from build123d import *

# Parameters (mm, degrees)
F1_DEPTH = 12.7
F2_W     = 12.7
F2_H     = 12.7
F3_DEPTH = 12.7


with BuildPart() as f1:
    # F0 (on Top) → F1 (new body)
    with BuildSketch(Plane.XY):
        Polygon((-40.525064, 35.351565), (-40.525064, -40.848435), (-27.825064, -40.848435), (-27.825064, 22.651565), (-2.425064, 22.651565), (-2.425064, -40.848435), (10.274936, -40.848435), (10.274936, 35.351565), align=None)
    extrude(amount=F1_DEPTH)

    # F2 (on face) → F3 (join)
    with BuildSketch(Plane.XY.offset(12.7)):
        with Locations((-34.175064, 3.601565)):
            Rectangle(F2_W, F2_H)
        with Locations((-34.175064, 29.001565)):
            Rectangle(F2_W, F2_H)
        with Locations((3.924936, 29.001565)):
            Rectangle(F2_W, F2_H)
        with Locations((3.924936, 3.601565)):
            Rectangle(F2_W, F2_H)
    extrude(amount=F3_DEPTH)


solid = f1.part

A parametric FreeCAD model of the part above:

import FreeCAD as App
import Part
import Sketcher

V = App.Vector
Q = App.Units.Quantity

doc = App.newDocument("Part")
body = doc.addObject("PartDesign::Body", "Body")

sketch1 = doc.addObject("Sketcher::SketchObject", "Sketch")
body.addObject(sketch1)
sketch1.AttachmentSupport = (doc.XY_Plane, [""])
sketch1.MapMode = "FlatFace"
sketch1.addGeometry([
    Part.LineSegment(V(-41, 35, 0), V(-41, -41, 0)),
    Part.LineSegment(V(-41, -41, 0), V(-28, -41, 0)),
    Part.LineSegment(V(-28, -41, 0), V(-28, 23, 0)),
    Part.LineSegment(V(-28, 23, 0), V(-2, 23, 0)),
    Part.LineSegment(V(-2, 23, 0), V(-2, -41, 0)),
    Part.LineSegment(V(-2, -41, 0), V(10, -41, 0)),
    Part.LineSegment(V(10, -41, 0), V(10, 35, 0)),
    Part.LineSegment(V(10, 35, 0), V(-41, 35, 0)),
], False)
sketch1.addConstraint([
    Sketcher.Constraint("Coincident", 0, 2, 1, 1),
    Sketcher.Constraint("Coincident", 1, 2, 2, 1),
    Sketcher.Constraint("Coincident", 2, 2, 3, 1),
    Sketcher.Constraint("Coincident", 3, 2, 4, 1),
    Sketcher.Constraint("Coincident", 4, 2, 5, 1),
    Sketcher.Constraint("Coincident", 5, 2, 6, 1),
    Sketcher.Constraint("Coincident", 6, 2, 7, 1),
    Sketcher.Constraint("Coincident", 7, 2, 0, 1),
    Sketcher.Constraint("Vertical", 0),
    Sketcher.Constraint("Horizontal", 1),
    Sketcher.Constraint("Vertical", 2),
    Sketcher.Constraint("Horizontal", 3),
    Sketcher.Constraint("Vertical", 4),
    Sketcher.Constraint("Horizontal", 5),
    Sketcher.Constraint("Vertical", 6),
    Sketcher.Constraint("Horizontal", 7),
    Sketcher.Constraint("Horizontal", 1, 2, 4, 2),
    Sketcher.Constraint("Equal", 1, 5),
    Sketcher.Constraint("DistanceX", 3, 1, 3, 2, Q("1 in")),
    Sketcher.Constraint("DistanceX", 7, 2, 7, 1, Q("2 in")),
    Sketcher.Constraint("DistanceY", 0, 2, 0, 1, Q("3 in")),
    Sketcher.Constraint("DistanceY", 2, 1, 2, 2, Q("2.5 in")),
    Sketcher.Constraint("DistanceX", 0, 2, -1, 1, Q("40.525064 mm")),
    Sketcher.Constraint("DistanceY", 0, 2, -1, 1, Q("40.848435 mm")),
])
pad1 = doc.addObject("PartDesign::Pad", "Pad")
body.addObject(pad1)
pad1.Profile = sketch1
pad1.Length = Q("0.5 in")

sketch2 = doc.addObject("Sketcher::SketchObject", "Sketch001")
body.addObject(sketch2)
sketch2.AttachmentSupport = (doc.XY_Plane, [""])
sketch2.MapMode = "FlatFace"
sketch2.AttachmentOffset = App.Placement(V(0, 0, 0.5 * 25.4), App.Rotation())
sketch2.addGeometry([
    Part.LineSegment(V(-41, 10, 0), V(-41, -3, 0)),
    Part.LineSegment(V(-41, -3, 0), V(-28, -3, 0)),
    Part.LineSegment(V(-28, -3, 0), V(-28, 10, 0)),
    Part.LineSegment(V(-28, 10, 0), V(-41, 10, 0)),
    Part.LineSegment(V(-41, 35, 0), V(-41, 23, 0)),
    Part.LineSegment(V(-41, 23, 0), V(-28, 23, 0)),
    Part.LineSegment(V(-28, 23, 0), V(-28, 35, 0)),
    Part.LineSegment(V(-28, 35, 0), V(-41, 35, 0)),
    Part.LineSegment(V(-2, 35, 0), V(-2, 23, 0)),
    Part.LineSegment(V(-2, 23, 0), V(10, 23, 0)),
    Part.LineSegment(V(10, 23, 0), V(10, 35, 0)),
    Part.LineSegment(V(10, 35, 0), V(-2, 35, 0)),
    Part.LineSegment(V(-2, 10, 0), V(-2, -3, 0)),
    Part.LineSegment(V(-2, -3, 0), V(10, -3, 0)),
    Part.LineSegment(V(10, -3, 0), V(10, 10, 0)),
    Part.LineSegment(V(10, 10, 0), V(-2, 10, 0)),
], False)
sketch2.addConstraint([
    Sketcher.Constraint("Coincident", 0, 2, 1, 1),
    Sketcher.Constraint("Coincident", 1, 2, 2, 1),
    Sketcher.Constraint("Coincident", 2, 2, 3, 1),
    Sketcher.Constraint("Coincident", 3, 2, 0, 1),
    Sketcher.Constraint("Coincident", 4, 2, 5, 1),
    Sketcher.Constraint("Coincident", 5, 2, 6, 1),
    Sketcher.Constraint("Coincident", 6, 2, 7, 1),
    Sketcher.Constraint("Coincident", 7, 2, 4, 1),
    Sketcher.Constraint("Coincident", 8, 2, 9, 1),
    Sketcher.Constraint("Coincident", 9, 2, 10, 1),
    Sketcher.Constraint("Coincident", 10, 2, 11, 1),
    Sketcher.Constraint("Coincident", 11, 2, 8, 1),
    Sketcher.Constraint("Coincident", 12, 2, 13, 1),
    Sketcher.Constraint("Coincident", 13, 2, 14, 1),
    Sketcher.Constraint("Coincident", 14, 2, 15, 1),
    Sketcher.Constraint("Coincident", 15, 2, 12, 1),
    Sketcher.Constraint("Vertical", 0),
    Sketcher.Constraint("Horizontal", 1),
    Sketcher.Constraint("Vertical", 2),
    Sketcher.Constraint("Horizontal", 3),
    Sketcher.Constraint("Vertical", 4),
    Sketcher.Constraint("Horizontal", 5),
    Sketcher.Constraint("Vertical", 6),
    Sketcher.Constraint("Horizontal", 7),
    Sketcher.Constraint("Vertical", 8),
    Sketcher.Constraint("Horizontal", 9),
    Sketcher.Constraint("Vertical", 10),
    Sketcher.Constraint("Horizontal", 11),
    Sketcher.Constraint("Vertical", 12),
    Sketcher.Constraint("Horizontal", 13),
    Sketcher.Constraint("Vertical", 14),
    Sketcher.Constraint("Horizontal", 15),
    Sketcher.Constraint("Horizontal", 5, 2, 8, 2),
    Sketcher.Constraint("Horizontal", 7, 2, 10, 2),
    Sketcher.Constraint("Horizontal", 1, 2, 12, 2),
    Sketcher.Constraint("Horizontal", 3, 2, 14, 2),
    Sketcher.Constraint("Vertical", 3, 2, 4, 2),
    Sketcher.Constraint("Vertical", 2, 2, 5, 2),
    Sketcher.Constraint("Vertical", 11, 2, 12, 2),
    Sketcher.Constraint("Vertical", 10, 2, 13, 2),
    Sketcher.Constraint("Equal", 7, 9),
    Sketcher.Constraint("Equal", 15, 0),
    Sketcher.Constraint("Equal", 2, 4),
    Sketcher.Constraint("DistanceX", 1, 1, 1, 2, Q("0.5 in")),
    Sketcher.Constraint("DistanceY", 0, 2, 4, 2, Q("1 in")),
    Sketcher.Constraint("DistanceX", 5, 2, 8, 2, Q("1 in")),
    Sketcher.Constraint("DistanceX", 0, 2, -1, 1, Q("40.525064 mm")),
    Sketcher.Constraint("DistanceY", 0, 2, -1, 1, Q("2.748435 mm")),
])
pad2 = doc.addObject("PartDesign::Pad", "Pad001")
body.addObject(pad2)
pad2.Profile = sketch2
pad2.Length = Q("0.5 in")

doc.recompute()
